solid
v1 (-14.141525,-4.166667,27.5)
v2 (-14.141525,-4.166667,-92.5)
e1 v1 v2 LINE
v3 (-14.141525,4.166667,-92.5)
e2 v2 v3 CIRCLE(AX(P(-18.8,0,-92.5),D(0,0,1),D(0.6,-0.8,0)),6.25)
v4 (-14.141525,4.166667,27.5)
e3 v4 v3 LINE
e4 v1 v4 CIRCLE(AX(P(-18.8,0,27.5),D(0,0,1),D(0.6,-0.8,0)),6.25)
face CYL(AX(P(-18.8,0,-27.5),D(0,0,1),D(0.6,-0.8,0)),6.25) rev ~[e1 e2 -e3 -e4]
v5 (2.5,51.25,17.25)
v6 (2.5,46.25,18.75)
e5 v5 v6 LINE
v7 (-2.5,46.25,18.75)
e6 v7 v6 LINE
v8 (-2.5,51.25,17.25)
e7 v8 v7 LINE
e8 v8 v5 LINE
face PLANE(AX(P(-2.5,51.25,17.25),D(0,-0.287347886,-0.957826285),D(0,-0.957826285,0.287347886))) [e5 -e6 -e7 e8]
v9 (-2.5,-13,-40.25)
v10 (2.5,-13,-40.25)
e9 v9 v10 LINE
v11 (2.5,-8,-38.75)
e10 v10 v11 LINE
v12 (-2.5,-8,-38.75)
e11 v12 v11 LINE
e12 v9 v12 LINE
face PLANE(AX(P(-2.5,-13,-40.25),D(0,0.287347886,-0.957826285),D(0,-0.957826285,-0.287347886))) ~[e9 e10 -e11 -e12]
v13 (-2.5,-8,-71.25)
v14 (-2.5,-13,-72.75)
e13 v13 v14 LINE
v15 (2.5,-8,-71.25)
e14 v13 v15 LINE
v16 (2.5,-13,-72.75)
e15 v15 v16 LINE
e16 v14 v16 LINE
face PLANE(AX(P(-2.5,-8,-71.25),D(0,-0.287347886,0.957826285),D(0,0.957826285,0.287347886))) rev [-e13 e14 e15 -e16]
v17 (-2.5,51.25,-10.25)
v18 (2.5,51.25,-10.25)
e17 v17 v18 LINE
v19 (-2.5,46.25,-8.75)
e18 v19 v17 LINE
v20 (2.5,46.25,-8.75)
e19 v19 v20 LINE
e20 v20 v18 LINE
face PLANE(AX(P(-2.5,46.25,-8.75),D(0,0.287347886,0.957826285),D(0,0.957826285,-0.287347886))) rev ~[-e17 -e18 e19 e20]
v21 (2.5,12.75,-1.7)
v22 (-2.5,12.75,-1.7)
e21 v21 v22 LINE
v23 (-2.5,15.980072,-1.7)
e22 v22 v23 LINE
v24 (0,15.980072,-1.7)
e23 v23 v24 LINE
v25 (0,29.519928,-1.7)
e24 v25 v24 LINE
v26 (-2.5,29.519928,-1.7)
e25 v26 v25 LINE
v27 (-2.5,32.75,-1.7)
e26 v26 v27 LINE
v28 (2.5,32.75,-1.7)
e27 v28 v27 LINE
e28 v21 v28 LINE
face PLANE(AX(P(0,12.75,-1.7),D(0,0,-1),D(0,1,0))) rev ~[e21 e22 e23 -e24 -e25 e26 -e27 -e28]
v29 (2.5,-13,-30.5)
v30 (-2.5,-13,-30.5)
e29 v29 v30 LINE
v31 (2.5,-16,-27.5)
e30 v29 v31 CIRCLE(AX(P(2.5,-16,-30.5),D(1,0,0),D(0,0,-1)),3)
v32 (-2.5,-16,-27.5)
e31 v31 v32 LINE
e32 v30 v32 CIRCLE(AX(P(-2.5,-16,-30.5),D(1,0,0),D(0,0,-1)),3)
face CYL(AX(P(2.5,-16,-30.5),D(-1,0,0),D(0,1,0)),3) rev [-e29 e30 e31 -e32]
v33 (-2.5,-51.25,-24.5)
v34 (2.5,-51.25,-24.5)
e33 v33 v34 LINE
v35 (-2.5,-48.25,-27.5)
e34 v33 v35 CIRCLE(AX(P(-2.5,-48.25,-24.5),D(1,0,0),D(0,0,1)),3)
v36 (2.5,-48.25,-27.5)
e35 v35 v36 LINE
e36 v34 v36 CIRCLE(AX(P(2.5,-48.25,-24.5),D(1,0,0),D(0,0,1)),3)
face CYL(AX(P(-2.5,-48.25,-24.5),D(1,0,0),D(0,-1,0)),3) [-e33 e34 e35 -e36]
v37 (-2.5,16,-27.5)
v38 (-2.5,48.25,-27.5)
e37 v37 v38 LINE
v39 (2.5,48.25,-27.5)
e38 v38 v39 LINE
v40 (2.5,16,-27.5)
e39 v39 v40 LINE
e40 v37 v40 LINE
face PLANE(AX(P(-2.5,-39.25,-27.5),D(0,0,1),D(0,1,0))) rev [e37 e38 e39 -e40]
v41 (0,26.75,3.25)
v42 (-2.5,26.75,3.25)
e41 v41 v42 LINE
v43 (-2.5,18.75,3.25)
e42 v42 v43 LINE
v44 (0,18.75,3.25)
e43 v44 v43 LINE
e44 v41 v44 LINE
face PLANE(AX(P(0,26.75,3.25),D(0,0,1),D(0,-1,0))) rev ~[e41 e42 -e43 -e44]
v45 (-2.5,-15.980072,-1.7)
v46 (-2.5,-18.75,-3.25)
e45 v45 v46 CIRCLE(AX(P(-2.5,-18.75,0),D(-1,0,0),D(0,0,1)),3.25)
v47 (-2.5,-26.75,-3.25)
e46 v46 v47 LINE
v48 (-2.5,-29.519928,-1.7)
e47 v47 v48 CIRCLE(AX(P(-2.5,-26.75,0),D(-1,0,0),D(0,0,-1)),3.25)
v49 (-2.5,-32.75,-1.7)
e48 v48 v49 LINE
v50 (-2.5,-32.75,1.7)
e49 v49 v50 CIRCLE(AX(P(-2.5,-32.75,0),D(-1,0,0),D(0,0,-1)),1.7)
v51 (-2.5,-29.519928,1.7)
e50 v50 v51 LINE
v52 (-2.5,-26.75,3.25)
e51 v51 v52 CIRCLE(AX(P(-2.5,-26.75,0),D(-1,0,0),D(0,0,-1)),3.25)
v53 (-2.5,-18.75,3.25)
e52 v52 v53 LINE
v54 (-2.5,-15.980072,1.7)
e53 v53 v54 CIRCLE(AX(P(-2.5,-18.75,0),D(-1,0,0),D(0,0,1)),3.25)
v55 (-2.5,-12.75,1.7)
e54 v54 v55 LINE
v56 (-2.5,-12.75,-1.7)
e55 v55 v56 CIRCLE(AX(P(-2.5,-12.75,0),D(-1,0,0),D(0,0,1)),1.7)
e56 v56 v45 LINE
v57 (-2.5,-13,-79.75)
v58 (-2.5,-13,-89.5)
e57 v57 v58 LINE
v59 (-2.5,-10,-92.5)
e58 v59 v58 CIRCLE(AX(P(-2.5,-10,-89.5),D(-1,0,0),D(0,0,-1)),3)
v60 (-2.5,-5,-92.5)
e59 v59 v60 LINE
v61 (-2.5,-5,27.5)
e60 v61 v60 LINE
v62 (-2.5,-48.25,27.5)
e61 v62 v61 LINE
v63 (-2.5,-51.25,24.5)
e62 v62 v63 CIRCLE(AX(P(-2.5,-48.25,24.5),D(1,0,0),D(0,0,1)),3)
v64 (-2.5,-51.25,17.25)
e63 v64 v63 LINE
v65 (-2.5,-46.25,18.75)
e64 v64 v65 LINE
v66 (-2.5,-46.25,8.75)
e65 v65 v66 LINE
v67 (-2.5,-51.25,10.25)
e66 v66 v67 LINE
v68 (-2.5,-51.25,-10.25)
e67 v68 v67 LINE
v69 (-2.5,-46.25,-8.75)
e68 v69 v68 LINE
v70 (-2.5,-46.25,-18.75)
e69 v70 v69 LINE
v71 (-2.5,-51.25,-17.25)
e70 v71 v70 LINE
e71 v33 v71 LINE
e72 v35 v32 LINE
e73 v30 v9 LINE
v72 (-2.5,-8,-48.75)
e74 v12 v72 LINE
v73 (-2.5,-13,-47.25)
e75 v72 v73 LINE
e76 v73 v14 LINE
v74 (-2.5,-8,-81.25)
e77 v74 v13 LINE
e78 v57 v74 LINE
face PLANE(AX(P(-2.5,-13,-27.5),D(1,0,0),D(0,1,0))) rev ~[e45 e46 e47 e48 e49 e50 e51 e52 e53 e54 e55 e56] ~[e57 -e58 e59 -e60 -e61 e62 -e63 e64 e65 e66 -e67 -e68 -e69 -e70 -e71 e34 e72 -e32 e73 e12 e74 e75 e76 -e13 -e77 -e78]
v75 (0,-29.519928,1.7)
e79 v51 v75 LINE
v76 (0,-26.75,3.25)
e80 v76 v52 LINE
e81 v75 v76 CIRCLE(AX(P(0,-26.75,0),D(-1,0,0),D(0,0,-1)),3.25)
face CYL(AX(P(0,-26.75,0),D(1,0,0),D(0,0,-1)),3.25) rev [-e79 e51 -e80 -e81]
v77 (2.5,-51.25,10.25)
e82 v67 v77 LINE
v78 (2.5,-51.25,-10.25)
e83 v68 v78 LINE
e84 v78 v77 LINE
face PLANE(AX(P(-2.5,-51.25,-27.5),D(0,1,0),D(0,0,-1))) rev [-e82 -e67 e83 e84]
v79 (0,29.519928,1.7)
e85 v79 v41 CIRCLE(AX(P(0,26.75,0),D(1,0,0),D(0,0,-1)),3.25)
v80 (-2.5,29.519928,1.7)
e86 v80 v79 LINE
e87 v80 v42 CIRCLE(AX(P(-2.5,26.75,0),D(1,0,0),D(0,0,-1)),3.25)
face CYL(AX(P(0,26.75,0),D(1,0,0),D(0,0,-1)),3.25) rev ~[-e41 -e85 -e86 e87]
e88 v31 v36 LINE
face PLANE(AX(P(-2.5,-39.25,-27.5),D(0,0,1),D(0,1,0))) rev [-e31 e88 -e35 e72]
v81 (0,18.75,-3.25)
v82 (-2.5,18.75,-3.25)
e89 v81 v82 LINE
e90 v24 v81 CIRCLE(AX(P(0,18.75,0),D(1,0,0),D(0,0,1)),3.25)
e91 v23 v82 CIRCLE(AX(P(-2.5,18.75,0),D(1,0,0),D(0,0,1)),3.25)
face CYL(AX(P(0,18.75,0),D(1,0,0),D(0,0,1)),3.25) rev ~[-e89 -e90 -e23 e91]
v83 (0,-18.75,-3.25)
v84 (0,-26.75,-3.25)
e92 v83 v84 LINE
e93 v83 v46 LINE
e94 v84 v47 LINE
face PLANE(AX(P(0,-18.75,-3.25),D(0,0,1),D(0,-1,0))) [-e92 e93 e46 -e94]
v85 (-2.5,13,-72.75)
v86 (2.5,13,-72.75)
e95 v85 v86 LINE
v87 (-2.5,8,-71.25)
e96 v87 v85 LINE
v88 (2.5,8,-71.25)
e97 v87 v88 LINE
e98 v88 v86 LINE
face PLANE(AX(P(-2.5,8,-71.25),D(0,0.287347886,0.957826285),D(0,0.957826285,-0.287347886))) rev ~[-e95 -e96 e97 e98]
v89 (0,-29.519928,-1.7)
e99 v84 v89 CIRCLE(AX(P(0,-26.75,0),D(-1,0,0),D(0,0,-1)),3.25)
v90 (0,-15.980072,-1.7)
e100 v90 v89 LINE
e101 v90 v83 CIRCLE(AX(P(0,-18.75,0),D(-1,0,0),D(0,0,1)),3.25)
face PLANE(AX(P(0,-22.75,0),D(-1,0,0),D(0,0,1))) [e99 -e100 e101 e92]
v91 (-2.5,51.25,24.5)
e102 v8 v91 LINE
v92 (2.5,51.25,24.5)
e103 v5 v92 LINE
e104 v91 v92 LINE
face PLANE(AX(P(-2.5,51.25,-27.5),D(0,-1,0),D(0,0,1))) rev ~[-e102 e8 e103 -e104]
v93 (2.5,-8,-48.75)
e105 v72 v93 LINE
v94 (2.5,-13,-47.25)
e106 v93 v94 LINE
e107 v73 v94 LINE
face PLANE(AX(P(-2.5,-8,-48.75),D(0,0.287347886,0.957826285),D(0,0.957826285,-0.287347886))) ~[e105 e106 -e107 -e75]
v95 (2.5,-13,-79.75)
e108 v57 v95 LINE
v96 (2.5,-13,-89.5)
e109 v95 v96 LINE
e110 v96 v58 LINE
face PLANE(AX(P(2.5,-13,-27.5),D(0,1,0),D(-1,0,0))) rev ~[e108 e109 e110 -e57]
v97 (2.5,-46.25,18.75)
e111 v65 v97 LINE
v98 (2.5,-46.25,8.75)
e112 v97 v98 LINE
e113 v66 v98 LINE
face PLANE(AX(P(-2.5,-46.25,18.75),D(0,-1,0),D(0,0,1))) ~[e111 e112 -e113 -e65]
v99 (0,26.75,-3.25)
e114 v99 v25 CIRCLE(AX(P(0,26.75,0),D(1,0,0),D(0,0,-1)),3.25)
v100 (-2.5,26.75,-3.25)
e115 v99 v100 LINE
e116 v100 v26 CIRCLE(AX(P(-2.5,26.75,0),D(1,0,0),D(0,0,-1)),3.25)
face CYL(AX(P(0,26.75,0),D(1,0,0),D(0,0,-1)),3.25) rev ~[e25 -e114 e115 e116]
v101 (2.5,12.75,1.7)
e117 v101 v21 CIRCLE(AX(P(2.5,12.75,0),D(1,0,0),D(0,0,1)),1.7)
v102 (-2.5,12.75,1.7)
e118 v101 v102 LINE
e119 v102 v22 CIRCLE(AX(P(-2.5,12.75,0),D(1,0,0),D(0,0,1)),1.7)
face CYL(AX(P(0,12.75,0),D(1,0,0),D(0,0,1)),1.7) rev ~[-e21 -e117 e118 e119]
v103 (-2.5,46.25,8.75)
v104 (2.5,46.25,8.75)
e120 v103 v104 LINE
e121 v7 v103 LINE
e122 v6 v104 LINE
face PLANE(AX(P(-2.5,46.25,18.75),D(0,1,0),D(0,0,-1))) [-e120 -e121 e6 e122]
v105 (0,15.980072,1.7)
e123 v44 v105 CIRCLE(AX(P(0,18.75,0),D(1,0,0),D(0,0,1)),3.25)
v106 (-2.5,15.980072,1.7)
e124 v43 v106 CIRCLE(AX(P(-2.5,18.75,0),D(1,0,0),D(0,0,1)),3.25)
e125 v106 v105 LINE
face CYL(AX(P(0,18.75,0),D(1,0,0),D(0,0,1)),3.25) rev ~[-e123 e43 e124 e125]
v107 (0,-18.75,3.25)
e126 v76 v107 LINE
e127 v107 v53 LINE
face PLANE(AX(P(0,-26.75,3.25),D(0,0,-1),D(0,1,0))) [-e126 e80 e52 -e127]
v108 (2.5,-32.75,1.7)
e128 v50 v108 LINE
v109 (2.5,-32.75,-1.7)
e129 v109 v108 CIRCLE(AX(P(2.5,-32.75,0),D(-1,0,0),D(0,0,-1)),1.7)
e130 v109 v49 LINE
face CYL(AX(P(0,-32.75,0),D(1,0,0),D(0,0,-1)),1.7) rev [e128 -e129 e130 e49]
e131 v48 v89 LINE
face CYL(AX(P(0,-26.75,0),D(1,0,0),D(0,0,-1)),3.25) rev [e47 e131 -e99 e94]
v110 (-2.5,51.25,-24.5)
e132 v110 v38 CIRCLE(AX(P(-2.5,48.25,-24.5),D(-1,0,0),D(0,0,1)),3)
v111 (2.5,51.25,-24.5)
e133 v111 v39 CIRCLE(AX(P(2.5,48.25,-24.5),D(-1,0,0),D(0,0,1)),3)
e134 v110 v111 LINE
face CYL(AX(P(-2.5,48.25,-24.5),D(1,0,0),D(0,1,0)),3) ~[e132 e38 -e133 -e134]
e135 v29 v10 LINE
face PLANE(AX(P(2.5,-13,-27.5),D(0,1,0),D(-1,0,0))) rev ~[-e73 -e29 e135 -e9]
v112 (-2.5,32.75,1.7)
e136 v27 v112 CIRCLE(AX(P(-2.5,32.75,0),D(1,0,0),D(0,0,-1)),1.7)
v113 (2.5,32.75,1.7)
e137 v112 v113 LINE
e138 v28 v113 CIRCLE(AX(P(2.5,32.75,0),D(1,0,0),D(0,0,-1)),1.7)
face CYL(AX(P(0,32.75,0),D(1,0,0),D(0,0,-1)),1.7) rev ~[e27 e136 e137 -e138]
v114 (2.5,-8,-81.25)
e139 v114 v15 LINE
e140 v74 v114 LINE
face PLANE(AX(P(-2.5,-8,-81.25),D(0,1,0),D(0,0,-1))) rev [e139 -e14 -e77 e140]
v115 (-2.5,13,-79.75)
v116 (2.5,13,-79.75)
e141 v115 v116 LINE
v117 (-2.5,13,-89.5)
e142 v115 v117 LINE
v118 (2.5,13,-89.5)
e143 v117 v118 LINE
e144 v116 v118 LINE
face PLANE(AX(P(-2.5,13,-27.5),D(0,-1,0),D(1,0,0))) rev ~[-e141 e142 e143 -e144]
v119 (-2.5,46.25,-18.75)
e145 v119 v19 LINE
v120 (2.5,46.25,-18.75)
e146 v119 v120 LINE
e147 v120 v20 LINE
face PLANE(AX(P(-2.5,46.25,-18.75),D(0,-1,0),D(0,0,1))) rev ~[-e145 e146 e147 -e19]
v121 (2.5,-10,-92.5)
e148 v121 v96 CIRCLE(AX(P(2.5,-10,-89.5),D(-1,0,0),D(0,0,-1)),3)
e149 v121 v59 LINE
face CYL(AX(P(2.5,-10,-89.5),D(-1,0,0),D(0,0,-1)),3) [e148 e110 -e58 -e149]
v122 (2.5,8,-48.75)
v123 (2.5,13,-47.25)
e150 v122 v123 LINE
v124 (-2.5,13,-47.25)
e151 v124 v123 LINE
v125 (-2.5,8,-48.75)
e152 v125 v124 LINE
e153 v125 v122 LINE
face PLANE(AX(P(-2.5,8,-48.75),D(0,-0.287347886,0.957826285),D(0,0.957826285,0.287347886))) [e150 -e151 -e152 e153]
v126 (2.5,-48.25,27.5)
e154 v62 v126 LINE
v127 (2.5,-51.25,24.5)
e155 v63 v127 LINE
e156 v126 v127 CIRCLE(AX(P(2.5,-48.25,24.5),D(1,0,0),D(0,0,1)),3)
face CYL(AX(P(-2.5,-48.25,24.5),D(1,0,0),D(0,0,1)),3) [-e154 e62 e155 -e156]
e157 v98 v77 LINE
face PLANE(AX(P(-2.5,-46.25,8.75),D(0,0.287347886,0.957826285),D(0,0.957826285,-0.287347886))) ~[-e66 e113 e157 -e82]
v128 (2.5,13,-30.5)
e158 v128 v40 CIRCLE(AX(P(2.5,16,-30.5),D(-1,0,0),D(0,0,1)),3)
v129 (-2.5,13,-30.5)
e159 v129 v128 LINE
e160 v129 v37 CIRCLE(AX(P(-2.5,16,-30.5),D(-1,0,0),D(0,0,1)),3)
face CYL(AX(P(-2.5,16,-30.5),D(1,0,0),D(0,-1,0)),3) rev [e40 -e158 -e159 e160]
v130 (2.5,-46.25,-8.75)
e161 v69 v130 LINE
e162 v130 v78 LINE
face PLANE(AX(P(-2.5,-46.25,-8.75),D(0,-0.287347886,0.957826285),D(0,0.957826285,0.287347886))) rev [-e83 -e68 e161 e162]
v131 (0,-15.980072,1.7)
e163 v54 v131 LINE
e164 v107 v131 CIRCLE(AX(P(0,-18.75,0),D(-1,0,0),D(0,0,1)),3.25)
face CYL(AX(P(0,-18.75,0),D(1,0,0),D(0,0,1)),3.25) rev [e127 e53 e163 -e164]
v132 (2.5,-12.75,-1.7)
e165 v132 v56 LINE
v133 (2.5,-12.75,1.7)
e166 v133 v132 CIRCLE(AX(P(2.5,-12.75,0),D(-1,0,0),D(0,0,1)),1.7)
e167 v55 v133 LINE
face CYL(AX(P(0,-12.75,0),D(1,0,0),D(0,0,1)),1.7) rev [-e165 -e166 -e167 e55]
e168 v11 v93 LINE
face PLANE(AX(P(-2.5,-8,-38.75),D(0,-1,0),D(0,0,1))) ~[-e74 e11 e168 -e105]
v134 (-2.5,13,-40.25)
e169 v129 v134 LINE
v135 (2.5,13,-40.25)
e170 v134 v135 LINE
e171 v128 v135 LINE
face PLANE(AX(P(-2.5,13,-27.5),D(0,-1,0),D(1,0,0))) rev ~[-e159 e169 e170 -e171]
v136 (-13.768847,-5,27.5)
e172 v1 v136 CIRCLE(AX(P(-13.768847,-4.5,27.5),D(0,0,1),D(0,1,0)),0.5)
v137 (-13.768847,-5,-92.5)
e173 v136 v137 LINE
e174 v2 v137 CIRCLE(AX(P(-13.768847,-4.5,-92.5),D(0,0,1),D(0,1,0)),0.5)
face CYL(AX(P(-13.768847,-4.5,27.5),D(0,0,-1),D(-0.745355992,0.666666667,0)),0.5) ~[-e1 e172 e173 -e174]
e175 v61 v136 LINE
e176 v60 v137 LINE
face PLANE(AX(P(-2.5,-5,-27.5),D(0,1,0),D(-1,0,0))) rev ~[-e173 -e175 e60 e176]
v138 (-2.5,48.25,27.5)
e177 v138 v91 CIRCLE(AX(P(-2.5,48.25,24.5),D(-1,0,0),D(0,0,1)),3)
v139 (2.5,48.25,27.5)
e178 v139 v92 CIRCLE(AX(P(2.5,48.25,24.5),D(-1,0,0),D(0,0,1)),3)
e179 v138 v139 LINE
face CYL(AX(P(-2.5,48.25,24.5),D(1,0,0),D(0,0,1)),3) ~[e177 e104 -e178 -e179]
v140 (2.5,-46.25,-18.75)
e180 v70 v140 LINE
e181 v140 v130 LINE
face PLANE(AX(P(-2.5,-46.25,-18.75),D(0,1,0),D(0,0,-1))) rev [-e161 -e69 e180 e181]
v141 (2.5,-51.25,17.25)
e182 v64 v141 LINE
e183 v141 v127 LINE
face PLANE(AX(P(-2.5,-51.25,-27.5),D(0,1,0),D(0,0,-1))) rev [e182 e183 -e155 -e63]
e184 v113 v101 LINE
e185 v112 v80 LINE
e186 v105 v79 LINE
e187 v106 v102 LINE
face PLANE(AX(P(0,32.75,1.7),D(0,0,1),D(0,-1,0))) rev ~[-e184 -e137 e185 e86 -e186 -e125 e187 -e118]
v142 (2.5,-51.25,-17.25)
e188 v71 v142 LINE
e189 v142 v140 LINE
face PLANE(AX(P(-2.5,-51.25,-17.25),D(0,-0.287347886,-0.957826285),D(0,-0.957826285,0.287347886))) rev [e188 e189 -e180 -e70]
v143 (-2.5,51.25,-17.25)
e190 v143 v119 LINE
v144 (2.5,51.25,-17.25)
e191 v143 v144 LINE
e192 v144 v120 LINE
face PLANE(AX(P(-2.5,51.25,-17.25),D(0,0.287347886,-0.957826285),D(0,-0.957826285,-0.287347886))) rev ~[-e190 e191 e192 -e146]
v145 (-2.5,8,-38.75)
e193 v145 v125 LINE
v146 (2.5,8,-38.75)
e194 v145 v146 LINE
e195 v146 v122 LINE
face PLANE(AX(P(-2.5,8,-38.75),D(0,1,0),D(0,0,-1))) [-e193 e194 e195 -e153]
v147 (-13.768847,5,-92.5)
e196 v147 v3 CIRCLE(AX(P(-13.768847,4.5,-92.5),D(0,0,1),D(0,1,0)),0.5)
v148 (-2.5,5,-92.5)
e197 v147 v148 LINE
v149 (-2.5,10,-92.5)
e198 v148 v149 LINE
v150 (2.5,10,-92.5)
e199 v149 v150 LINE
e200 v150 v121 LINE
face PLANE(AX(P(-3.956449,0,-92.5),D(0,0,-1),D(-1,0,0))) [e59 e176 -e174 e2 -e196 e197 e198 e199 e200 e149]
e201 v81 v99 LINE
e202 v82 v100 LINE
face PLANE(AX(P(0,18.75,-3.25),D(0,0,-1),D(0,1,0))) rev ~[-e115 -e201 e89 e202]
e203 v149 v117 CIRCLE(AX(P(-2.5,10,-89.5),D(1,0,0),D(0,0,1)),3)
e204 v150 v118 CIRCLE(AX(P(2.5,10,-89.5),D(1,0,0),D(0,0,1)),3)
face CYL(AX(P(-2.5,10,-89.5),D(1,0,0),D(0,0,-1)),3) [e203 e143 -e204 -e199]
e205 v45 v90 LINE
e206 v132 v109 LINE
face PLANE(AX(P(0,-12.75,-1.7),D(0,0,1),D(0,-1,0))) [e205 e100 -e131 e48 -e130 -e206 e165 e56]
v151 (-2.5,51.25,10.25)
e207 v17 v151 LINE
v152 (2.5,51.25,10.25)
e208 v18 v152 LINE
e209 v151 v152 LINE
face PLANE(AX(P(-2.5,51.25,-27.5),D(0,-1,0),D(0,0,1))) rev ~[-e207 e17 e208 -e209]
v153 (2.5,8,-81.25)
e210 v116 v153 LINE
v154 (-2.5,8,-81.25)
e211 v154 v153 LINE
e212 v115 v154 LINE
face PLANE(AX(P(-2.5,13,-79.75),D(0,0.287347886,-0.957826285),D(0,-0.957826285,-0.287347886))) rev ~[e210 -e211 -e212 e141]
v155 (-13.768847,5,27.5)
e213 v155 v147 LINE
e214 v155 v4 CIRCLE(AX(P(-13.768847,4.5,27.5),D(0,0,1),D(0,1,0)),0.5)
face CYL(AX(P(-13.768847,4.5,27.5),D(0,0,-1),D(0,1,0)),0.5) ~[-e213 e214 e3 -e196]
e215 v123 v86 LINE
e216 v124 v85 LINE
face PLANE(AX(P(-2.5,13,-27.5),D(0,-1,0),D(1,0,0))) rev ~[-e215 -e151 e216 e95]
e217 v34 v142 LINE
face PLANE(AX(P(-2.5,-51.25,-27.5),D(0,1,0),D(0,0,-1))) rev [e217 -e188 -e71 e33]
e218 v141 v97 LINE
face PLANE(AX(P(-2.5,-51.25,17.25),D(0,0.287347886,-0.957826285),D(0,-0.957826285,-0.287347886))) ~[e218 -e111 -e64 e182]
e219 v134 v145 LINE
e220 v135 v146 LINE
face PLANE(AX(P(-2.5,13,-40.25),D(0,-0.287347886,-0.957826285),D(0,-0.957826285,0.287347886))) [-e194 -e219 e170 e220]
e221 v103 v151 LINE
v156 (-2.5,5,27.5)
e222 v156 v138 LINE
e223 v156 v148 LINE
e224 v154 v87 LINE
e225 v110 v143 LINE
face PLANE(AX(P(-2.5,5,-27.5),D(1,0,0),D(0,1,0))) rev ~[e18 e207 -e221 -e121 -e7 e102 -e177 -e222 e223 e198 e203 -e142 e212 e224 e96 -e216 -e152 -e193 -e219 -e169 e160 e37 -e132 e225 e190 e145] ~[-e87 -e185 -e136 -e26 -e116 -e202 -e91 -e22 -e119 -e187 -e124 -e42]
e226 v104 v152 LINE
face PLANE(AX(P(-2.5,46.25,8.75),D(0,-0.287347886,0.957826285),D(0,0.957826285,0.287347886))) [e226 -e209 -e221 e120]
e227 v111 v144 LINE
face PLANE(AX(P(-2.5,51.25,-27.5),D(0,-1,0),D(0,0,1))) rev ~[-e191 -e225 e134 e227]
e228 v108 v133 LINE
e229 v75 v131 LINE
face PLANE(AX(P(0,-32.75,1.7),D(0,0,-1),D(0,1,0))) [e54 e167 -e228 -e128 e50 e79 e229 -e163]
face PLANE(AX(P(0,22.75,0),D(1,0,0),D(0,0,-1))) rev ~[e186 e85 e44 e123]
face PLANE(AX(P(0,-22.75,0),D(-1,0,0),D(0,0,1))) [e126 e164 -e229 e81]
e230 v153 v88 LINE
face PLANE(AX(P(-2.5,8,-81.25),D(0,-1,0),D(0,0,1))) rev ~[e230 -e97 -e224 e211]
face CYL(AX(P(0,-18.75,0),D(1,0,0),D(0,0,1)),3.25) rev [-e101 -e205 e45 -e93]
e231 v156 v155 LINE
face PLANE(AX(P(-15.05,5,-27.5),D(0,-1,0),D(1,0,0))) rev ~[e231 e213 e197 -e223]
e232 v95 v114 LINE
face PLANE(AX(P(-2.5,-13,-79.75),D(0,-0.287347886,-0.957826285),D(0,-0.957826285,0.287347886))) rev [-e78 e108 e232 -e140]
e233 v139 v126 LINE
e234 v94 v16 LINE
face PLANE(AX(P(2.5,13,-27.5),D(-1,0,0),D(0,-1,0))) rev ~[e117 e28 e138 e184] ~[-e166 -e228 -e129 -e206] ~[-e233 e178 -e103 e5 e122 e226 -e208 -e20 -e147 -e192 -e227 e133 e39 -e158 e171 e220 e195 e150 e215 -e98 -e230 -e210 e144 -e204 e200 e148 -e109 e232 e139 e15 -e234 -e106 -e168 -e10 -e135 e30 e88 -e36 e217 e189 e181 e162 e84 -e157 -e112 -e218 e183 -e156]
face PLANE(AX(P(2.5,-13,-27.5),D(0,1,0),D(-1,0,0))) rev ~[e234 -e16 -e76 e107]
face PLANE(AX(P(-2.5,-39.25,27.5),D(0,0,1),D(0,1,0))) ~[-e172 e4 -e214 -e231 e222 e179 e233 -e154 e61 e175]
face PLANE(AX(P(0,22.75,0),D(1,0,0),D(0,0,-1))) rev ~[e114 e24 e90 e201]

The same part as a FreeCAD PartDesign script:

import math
import FreeCAD as App
import Part
import Sketcher
from FreeCAD import Vector


def edges_at(feature, points):
    """Names of the edges that pass closest to the given points."""
    edges = feature.Shape.Edges
    near = lambda p: min(range(len(edges)), key=lambda i: edges[i].distToShape(Part.Vertex(*p))[0])
    return sorted({f"Edge{near(p) + 1}" for p in points})

doc = App.newDocument("Part")
params = doc.addObject("Spreadsheet::Sheet", "Params")
for row, (alias, value) in enumerate([
    ("sketch1_radius", "1.7 mm"),
    ("sketch1_width", "20 mm"),
    ("sketch1_height", "55 mm"),
    ("sketch1_width2", "78.5 mm"),
    ("pad1_length", "5 mm"),
    ("sketch2_width", "10 mm"),
    ("sketch2_height", "55 mm"),
    ("pad2_length", "16.3 mm"),
    ("sketch3_height", "10 mm"),
    ("sketch3_radius", "6.25 mm"),
    ("sketch4_width", "12 mm"),
    ("sketch4_height", "55 mm"),
    ("pad3_length", "5 mm"),
    ("sketch5_height", "7 mm"),
    ("sketch5_height2", "10 mm"),
    ("pocket2_length", "5 mm"),
    ("sketch6_width", "8 mm"),
    ("sketch6_radius", "3.25 mm"),
    ("pocket3_length", "2.5 mm"),
    ("sketch7_width", "5 mm"),
    ("sketch7_height", "8 mm"),
    ("sketch7_height2", "26 mm"),
    ("sketch7_radius", "6.25 mm"),
    ("sketch7_width2", "12.55 mm"),
    ("pad4_length", "65 mm"),
    ("fillet_radius", "0.5 mm"),
    ("sketch8_height", "7 mm"),
    ("sketch8_height2", "10 mm"),
    ("pocket4_length", "5 mm"),
    ("fillet2_radius", "3 mm"),
], start=1):
    params.set(f"A{row}", alias)
    params.set(f"B{row}", "=" + value)
    params.setAlias(f"B{row}", alias)

body = doc.addObject("PartDesign::Body", "Body")

# Sketch on YZ plane
sketch1 = body.newObject("Sketcher::SketchObject", "Sketch")
sketch1.AttachmentSupport = (doc.getObject("YZ_Plane"), [""])
sketch1.MapMode = "FlatFace"
sketch1.addGeometry(Part.LineSegment(Vector(39.2, 27.5, 0), Vector(-39.2, 27.5, 0)), False)
sketch1.addGeometry(Part.LineSegment(Vector(-39.2, 27.5, 0), Vector(-39.2, -27.5, 0)), False)
sketch1.addGeometry(Part.LineSegment(Vector(-39.2, -27.5, 0), Vector(39.2, -27.5, 0)), False)
sketch1.addGeometry(Part.LineSegment(Vector(39.2, -27.5, 0), Vector(39.2, 27.5, 0)), False)
sketch1.addGeometry(Part.ArcOfCircle(Part.Circle(Vector(-32.8, 0, 0), Vector(0, 0, 1), 1.7), math.radians(90), math.radians(270)), False)
sketch1.addGeometry(Part.LineSegment(Vector(-32.8, 1.7, 0), Vector(-12.8, 1.7, 0)), False)
sketch1.addGeometry(Part.ArcOfCircle(Part.Circle(Vector(-12.8, 0, 0), Vector(0, 0, 1), 1.7), math.radians(-90), math.radians(90)), False)
sketch1.addGeometry(Part.LineSegment(Vector(-12.8, -1.7, 0), Vector(-32.8, -1.7, 0)), False)
sketch1.addGeometry(Part.LineSegment(Vector(12.8, 1.7, 0), Vector(32.8, 1.7, 0)), False)
sketch1.addGeometry(Part.ArcOfCircle(Part.Circle(Vector(32.8, 0, 0), Vector(0, 0, 1), 1.7), math.radians(-90), math.radians(90)), False)
sketch1.addGeometry(Part.LineSegment(Vector(32.8, -1.7, 0), Vector(12.8, -1.7, 0)), False)
sketch1.addGeometry(Part.ArcOfCircle(Part.Circle(Vector(12.8, 0, 0), Vector(0, 0, 1), 1.7), math.radians(90), math.radians(270)), False)
sketch1.addConstraint(Sketcher.Constraint("Coincident", 0, 2, 1, 1))
sketch1.addConstraint(Sketcher.Constraint("Coincident", 1, 2, 2, 1))
sketch1.addConstraint(Sketcher.Constraint("Coincident", 2, 2, 3, 1))
sketch1.addConstraint(Sketcher.Constraint("Coincident", 3, 2, 0, 1))
sketch1.addConstraint(Sketcher.Constraint("Tangent", 4, 1, 5, 1))
sketch1.addConstraint(Sketcher.Constraint("Tangent", 5, 2, 6, 2))
sketch1.addConstraint(Sketcher.Constraint("Tangent", 6, 1, 7, 1))
sketch1.addConstraint(Sketcher.Constraint("Tangent", 7, 2, 4, 2))
sketch1.addConstraint(Sketcher.Constraint("Tangent", 8, 2, 9, 2))
sketch1.addConstraint(Sketcher.Constraint("Tangent", 9, 1, 10, 1))
sketch1.addConstraint(Sketcher.Constraint("Tangent", 10, 2, 11, 2))
sketch1.addConstraint(Sketcher.Constraint("Tangent", 11, 1, 8, 1))
sketch1.addConstraint(Sketcher.Constraint("Horizontal", 0))
sketch1.addConstraint(Sketcher.Constraint("Vertical", 1))
sketch1.addConstraint(Sketcher.Constraint("Horizontal", 2))
sketch1.addConstraint(Sketcher.Constraint("Vertical", 3))
sketch1.addConstraint(Sketcher.Constraint("Horizontal", 5))
sketch1.addConstraint(Sketcher.Constraint("Horizontal", 7))
sketch1.addConstraint(Sketcher.Constraint("Horizontal", 8))
sketch1.addConstraint(Sketcher.Constraint("Horizontal", 10))
sketch1.addConstraint(Sketcher.Constraint("Equal", 6, 9))
sketch1.addConstraint(Sketcher.Constraint("Symmetric", 4, 3, 9, 3, -1, 1))
sketch1.addConstraint(Sketcher.Constraint("Symmetric", 0, 2, 2, 2, -1, 1))
sketch1.addConstraint(Sketcher.Constraint("Symmetric", 6, 3, 11, 3, -2))
sketch1.addConstraint(Sketcher.Constraint("Radius", 4, 1.7))
sketch1.addConstraint(Sketcher.Constraint("DistanceX", 5, 1, 5, 2, 20.0))
sketch1.addConstraint(Sketcher.Constraint("DistanceY", 1, 2, 1, 1, 55.0))
sketch1.addConstraint(Sketcher.Constraint("DistanceX", 0, 2, 0, 1, 78.5))
sketch1.addConstraint(Sketcher.Constraint("DistanceX", 0, 2, 11, 3, 52.0))
sketch1.setExpression("Constraints[24]", "Params.sketch1_radius")
sketch1.setExpression("Constraints[25]", "Params.sketch1_width")
sketch1.setExpression("Constraints[26]", "Params.sketch1_height")
sketch1.setExpression("Constraints[27]", "Params.sketch1_width2")
pad1 = body.newObject("PartDesign::Pad", "Pad")
pad1.Profile = sketch1
pad1.setExpression("Length", "Params.pad1_length")
pad1.Midplane = True

# Sketch on YZ plane
sketch2 = body.newObject("Sketcher::SketchObject", "Sketch001")
sketch2.AttachmentSupport = (doc.getObject("YZ_Plane"), [""])
sketch2.MapMode = "FlatFace"
sketch2.AttachmentOffset = App.Placement(Vector(0, 0, -2.5), App.Rotation())
sketch2.addGeometry(Part.LineSegment(Vector(5, -28, 0), Vector(-5, -28, 0)), False)
sketch2.addGeometry(Part.LineSegment(Vector(-5, -28, 0), Vector(-5, 28, 0)), False)
sketch2.addGeometry(Part.LineSegment(Vector(-5, 28, 0), Vector(5, 28, 0)), False)
sketch2.addGeometry(Part.LineSegment(Vector(5, 28, 0), Vector(5, -28, 0)), False)
sketch2.addConstraint(Sketcher.Constraint("Coincident", 0, 2, 1, 1))
sketch2.addConstraint(Sketcher.Constraint("Coincident", 1, 2, 2, 1))
sketch2.addConstraint(Sketcher.Constraint("Coincident", 2, 2, 3, 1))
sketch2.addConstraint(Sketcher.Constraint("Coincident", 3, 2, 0, 1))
sketch2.addConstraint(Sketcher.Constraint("Horizontal", 0))
sketch2.addConstraint(Sketcher.Constraint("Vertical", 1))
sketch2.addConstraint(Sketcher.Constraint("Horizontal", 2))
sketch2.addConstraint(Sketcher.Constraint("Vertical", 3))
sketch2.addConstraint(Sketcher.Constraint("Symmetric", 0, 2, 2, 2, -1, 1))
sketch2.addConstraint(Sketcher.Constraint("DistanceX", 0, 2, 0, 1, 10.0))
sketch2.addConstraint(Sketcher.Constraint("DistanceY", 1, 1, 1, 2, 55.0))
sketch2.setExpression("Constraints[9]", "Params.sketch2_width")
sketch2.setExpression("Constraints[10]", "Params.sketch2_height")
pad2 = body.newObject("PartDesign::Pad", "Pad001")
pad2.Profile = sketch2
pad2.setExpression("Length", "Params.pad2_length")
pad2.Reversed = True

# Sketch on XY plane
sketch3 = body.newObject("Sketcher::SketchObject", "Sketch002")
sketch3.AttachmentSupport = (doc.getObject("XY_Plane"), [""])
sketch3.MapMode = "FlatFace"
sketch3.AttachmentOffset = App.Placement(Vector(0, 0, 27.5), App.Rotation())
sketch3.addGeometry(Part.LineSegment(Vector(-15.1, 5, 0), Vector(-18.8, 5, 0)), False)
sketch3.addGeometry(Part.LineSegment(Vector(-18.8, 5, 0), Vector(-18.8, -5, 0)), False)
sketch3.addGeometry(Part.LineSegment(Vector(-18.8, -5, 0), Vector(-15.1, -5, 0)), False)
sketch3.addGeometry(Part.ArcOfCircle(Part.Circle(Vector(-18.8, 0, 0), Vector(0, 0, 1), 6.2), math.radians(-53), math.radians(53)), False)
sketch3.addConstraint(Sketcher.Constraint("Coincident", 0, 2, 1, 1))
sketch3.addConstraint(Sketcher.Constraint("Coincident", 1, 2, 2, 1))
sketch3.addConstraint(Sketcher.Constraint("Coincident", 2, 2, 3, 1))
sketch3.addConstraint(Sketcher.Constraint("Coincident", 3, 2, 0, 1))
sketch3.addConstraint(Sketcher.Constraint("Horizontal", 0))
sketch3.addConstraint(Sketcher.Constraint("Vertical", 1))
sketch3.addConstraint(Sketcher.Constraint("Horizontal", 2))
sketch3.addConstraint(Sketcher.Constraint("Symmetric", 2, 2, 3, 2, -1))
sketch3.addConstraint(Sketcher.Constraint("Vertical", 3, 3, 0, 2))
sketch3.addConstraint(Sketcher.Constraint("DistanceY", 1, 2, 1, 1, 10.0))
sketch3.addConstraint(Sketcher.Constraint("Radius", 3, 6.25))
sketch3.addConstraint(Sketcher.Constraint("DistanceX", 3, 3, -1, 1, 18.8))
sketch3.setExpression("Constraints[9]", "Params.sketch3_height")
sketch3.setExpression("Constraints[10]", "Params.sketch3_radius")
pocket1 = body.newObject("PartDesign::Pocket", "Pocket")
pocket1.Profile = sketch3
pocket1.Type = "ThroughAll"

# Sketch on YZ plane
sketch4 = body.newObject("Sketcher::SketchObject", "Sketch003")
sketch4.AttachmentSupport = (doc.getObject("YZ_Plane"), [""])
sketch4.MapMode = "FlatFace"
sketch4.AttachmentOffset = App.Placement(Vector(0, 0, -2.5), App.Rotation())
sketch4.addGeometry(Part.LineSegment(Vector(51, -28, 0), Vector(39, -28, 0)), False)
sketch4.addGeometry(Part.LineSegment(Vector(39, -28, 0), Vector(39, 28, 0)), False)
sketch4.addGeometry(Part.LineSegment(Vector(39, 28, 0), Vector(51, 28, 0)), False)
sketch4.addGeometry(Part.LineSegment(Vector(51, 28, 0), Vector(51, -28, 0)), False)
sketch4.addConstraint(Sketcher.Constraint("Coincident", 0, 2, 1, 1))
sketch4.addConstraint(Sketcher.Constraint("Coincident", 1, 2, 2, 1))
sketch4.addConstraint(Sketcher.Constraint("Coincident", 2, 2, 3, 1))
sketch4.addConstraint(Sketcher.Constraint("Coincident", 3, 2, 0, 1))
sketch4.addConstraint(Sketcher.Constraint("Horizontal", 0))
sketch4.addConstraint(Sketcher.Constraint("Vertical", 1))
sketch4.addConstraint(Sketcher.Constraint("Horizontal", 2))
sketch4.addConstraint(Sketcher.Constraint("Vertical", 3))
sketch4.addConstraint(Sketcher.Constraint("DistanceX", 0, 2, 0, 1, 12.0))
sketch4.addConstraint(Sketcher.Constraint("DistanceY", 1, 1, 1, 2, 55.0))
sketch4.addConstraint(Sketcher.Constraint("DistanceY", 0, 2, -1, 1, 27.5))
sketch4.addConstraint(Sketcher.Constraint("DistanceX", -1, 1, 0, 2, 39.25))
sketch4.setExpression("Constraints[8]", "Params.sketch4_width")
sketch4.setExpression("Constraints[9]", "Params.sketch4_height")
pad3 = body.newObject("PartDesign::Pad", "Pad002")
pad3.Profile = sketch4
pad3.setExpression("Length", "Params.pad3_length")

# Sketch on YZ plane
sketch5 = body.newObject("Sketcher::SketchObject", "Sketch004")
sketch5.AttachmentSupport = (doc.getObject("YZ_Plane"), [""])
sketch5.MapMode = "FlatFace"
sketch5.AttachmentOffset = App.Placement(Vector(0, 0, -2.5), App.Rotation())
sketch5.addGeometry(Part.LineSegment(Vector(51, 17, 0), Vector(51, 10, 0)), False)
sketch5.addGeometry(Part.LineSegment(Vector(51, 10, 0), Vector(46, 9, 0)), False)
sketch5.addGeometry(Part.LineSegment(Vector(46, 9, 0), Vector(46, 19, 0)), False)
sketch5.addGeometry(Part.LineSegment(Vector(46, 19, 0), Vector(51, 17, 0)), False)
sketch5.addGeometry(Part.LineSegment(Vector(46, -19, 0), Vector(46, -9, 0)), False)
sketch5.addGeometry(Part.LineSegment(Vector(46, -9, 0), Vector(51, -10, 0)), False)
sketch5.addGeometry(Part.LineSegment(Vector(51, -10, 0), Vector(51, -17, 0)), False)
sketch5.addGeometry(Part.LineSegment(Vector(51, -17, 0), Vector(46, -19, 0)), False)
sketch5.addConstraint(Sketcher.Constraint("Coincident", 0, 2, 1, 1))
sketch5.addConstraint(Sketcher.Constraint("Coincident", 1, 2, 2, 1))
sketch5.addConstraint(Sketcher.Constraint("Coincident", 2, 2, 3, 1))
sketch5.addConstraint(Sketcher.Constraint("Coincident", 3, 2, 0, 1))
sketch5.addConstraint(Sketcher.Constraint("Coincident", 4, 2, 5, 1))
sketch5.addConstraint(Sketcher.Constraint("Coincident", 5, 2, 6, 1))
sketch5.addConstraint(Sketcher.Constraint("Coincident", 6, 2, 7, 1))
sketch5.addConstraint(Sketcher.Constraint("Coincident", 7, 2, 4, 1))
sketch5.addConstraint(Sketcher.Constraint("Vertical", 0))
sketch5.addConstraint(Sketcher.Constraint("Vertical", 2))
sketch5.addConstraint(Sketcher.Constraint("Vertical", 4))
sketch5.addConstraint(Sketcher.Constraint("Vertical", 6))
sketch5.addConstraint(Sketcher.Constraint("Symmetric", 1, 2, 4, 2, -1))
sketch5.addConstraint(Sketcher.Constraint("Symmetric", 0, 2, 5, 2, -1))
sketch5.addConstraint(Sketcher.Constraint("Parallel", 3, 5))
sketch5.addConstraint(Sketcher.Constraint("Parallel", 1, 7))
sketch5.addConstraint(Sketcher.Constraint("Equal", 2, 4))
sketch5.addConstraint(Sketcher.Constraint("DistanceY", 0, 2, 0, 1, 7.0))
sketch5.addConstraint(Sketcher.Constraint("DistanceY", 2, 1, 2, 2, 10.0))
sketch5.addConstraint(Sketcher.Constraint("DistanceX", 1, 2, 0, 2, 5.0))
sketch5.addConstraint(Sketcher.Constraint("DistanceY", 4, 2, 0, 2, 19.0))
sketch5.addConstraint(Sketcher.Constraint("DistanceX", -1, 1, 0, 2, 51.25))
sketch5.setExpression("Constraints[17]", "Params.sketch5_height")
sketch5.setExpression("Constraints[18]", "Params.sketch5_height2")
pocket2 = body.newObject("PartDesign::Pocket", "Pocket001")
pocket2.Profile = sketch5
pocket2.setExpression("Length", "Params.pocket2_length")
pocket2.Reversed = True
doc.recompute()

mirrored = body.newObject("PartDesign::Mirrored", "Mirrored")
mirrored.Originals = [pad3]
mirrored.MirrorPlane = (doc.getObject("XZ_Plane"), [""])
body.Tip = mirrored

# Sketch on YZ plane
sketch6 = body.newObject("Sketcher::SketchObject", "Sketch005")
sketch6.AttachmentSupport = (doc.getObject("YZ_Plane"), [""])
sketch6.MapMode = "FlatFace"
sketch6.addGeometry(Part.LineSegment(Vector(-26.8, -3.2, 0), Vector(-18.8, -3.2, 0)), False)
sketch6.addGeometry(Part.ArcOfCircle(Part.Circle(Vector(-18.8, 0, 0), Vector(0, 0, 1), 3.2), math.radians(-90), math.radians(90)), False)
sketch6.addGeometry(Part.LineSegment(Vector(-18.8, 3.2, 0), Vector(-26.8, 3.2, 0)), False)
sketch6.addGeometry(Part.ArcOfCircle(Part.Circle(Vector(-26.8, 0, 0), Vector(0, 0, 1), 3.2), math.radians(90), math.radians(270)), False)
sketch6.addGeometry(Part.LineSegment(Vector(18.8, -3.2, 0), Vector(26.8, -3.2, 0)), False)
sketch6.addGeometry(Part.ArcOfCircle(Part.Circle(Vector(26.8, 0, 0), Vector(0, 0, 1), 3.2), math.radians(-90), math.radians(90)), False)
sketch6.addGeometry(Part.LineSegment(Vector(26.8, 3.2, 0), Vector(18.8, 3.2, 0)), False)
sketch6.addGeometry(Part.ArcOfCircle(Part.Circle(Vector(18.8, 0, 0), Vector(0, 0, 1), 3.2), math.radians(90), math.radians(270)), False)
sketch6.addConstraint(Sketcher.Constraint("Tangent", 0, 2, 1, 1))
sketch6.addConstraint(Sketcher.Constraint("Tangent", 1, 2, 2, 1))
sketch6.addConstraint(Sketcher.Constraint("Tangent", 2, 2, 3, 1))
sketch6.addConstraint(Sketcher.Constraint("Tangent", 3, 2, 0, 1))
sketch6.addConstraint(Sketcher.Constraint("Tangent", 4, 2, 5, 1))
sketch6.addConstraint(Sketcher.Constraint("Tangent", 5, 2, 6, 1))
sketch6.addConstraint(Sketcher.Constraint("Tangent", 6, 2, 7, 1))
sketch6.addConstraint(Sketcher.Constraint("Tangent", 7, 2, 4, 1))
sketch6.addConstraint(Sketcher.Constraint("Horizontal", 0))
sketch6.addConstraint(Sketcher.Constraint("Horizontal", 2))
sketch6.addConstraint(Sketcher.Constraint("Horizontal", 4))
sketch6.addConstraint(Sketcher.Constraint("Horizontal", 6))
sketch6.addConstraint(Sketcher.Constraint("Equal", 3, 5))
sketch6.addConstraint(Sketcher.Constraint("Symmetric", 3, 3, 5, 3, -1, 1))
sketch6.addConstraint(Sketcher.Constraint("Symmetric", 1, 3, 7, 3, -2))
sketch6.addConstraint(Sketcher.Constraint("DistanceX", 0, 1, 0, 2, 8.0))
sketch6.addConstraint(Sketcher.Constraint("Radius", 1, 3.25))
sketch6.addConstraint(Sketcher.Constraint("DistanceX", 1, 3, 5, 3, 45.5))
sketch6.setExpression("Constraints[15]", "Params.sketch6_width")
sketch6.setExpression("Constraints[16]", "Params.sketch6_radius")
pocket3 = body.newObject("PartDesign::Pocket", "Pocket002")
pocket3.Profile = sketch6
pocket3.setExpression("Length", "Params.pocket3_length")

# Sketch on XY plane
sketch7 = body.newObject("Sketcher::SketchObject", "Sketch006")
sketch7.AttachmentSupport = (doc.getObject("XY_Plane"), [""])
sketch7.MapMode = "FlatFace"
sketch7.AttachmentOffset = App.Placement(Vector(0, 0, -27.5), App.Rotation())
sketch7.addGeometry(Part.LineSegment(Vector(2, -13, 0), Vector(-2, -13, 0)), False)
sketch7.addGeometry(Part.LineSegment(Vector(-2, -13, 0), Vector(-2, -5, 0)), False)
sketch7.addGeometry(Part.LineSegment(Vector(-2, -5, 0), Vector(-15, -5, 0)), False)
sketch7.addGeometry(Part.ArcOfCircle(Part.Circle(Vector(-19, 0, 0), Vector(0, 0, 1), 6), math.radians(-53), math.radians(53)), False)
sketch7.addGeometry(Part.LineSegment(Vector(-15, 5, 0), Vector(-2, 5, 0)), False)
sketch7.addGeometry(Part.LineSegment(Vector(-2, 5, 0), Vector(-2, 13, 0)), False)
sketch7.addGeometry(Part.LineSegment(Vector(-2, 13, 0), Vector(2, 13, 0)), False)
sketch7.addGeometry(Part.LineSegment(Vector(2, 13, 0), Vector(2, -13, 0)), False)
sketch7.addConstraint(Sketcher.Constraint("Coincident", 0, 2, 1, 1))
sketch7.addConstraint(Sketcher.Constraint("Coincident", 1, 2, 2, 1))
sketch7.addConstraint(Sketcher.Constraint("Coincident", 2, 2, 3, 1))
sketch7.addConstraint(Sketcher.Constraint("Coincident", 3, 2, 4, 1))
sketch7.addConstraint(Sketcher.Constraint("Coincident", 4, 2, 5, 1))
sketch7.addConstraint(Sketcher.Constraint("Coincident", 5, 2, 6, 1))
sketch7.addConstraint(Sketcher.Constraint("Coincident", 6, 2, 7, 1))
sketch7.addConstraint(Sketcher.Constraint("Coincident", 7, 2, 0, 1))
sketch7.addConstraint(Sketcher.Constraint("Horizontal", 0))
sketch7.addConstraint(Sketcher.Constraint("Vertical", 1))
sketch7.addConstraint(Sketcher.Constraint("Horizontal", 2))
sketch7.addConstraint(Sketcher.Constraint("Horizontal", 4))
sketch7.addConstraint(Sketcher.Constraint("Vertical", 5))
sketch7.addConstraint(Sketcher.Constraint("Horizontal", 6))
sketch7.addConstraint(Sketcher.Constraint("Vertical", 7))
sketch7.addConstraint(Sketcher.Constraint("Symmetric", 0, 2, 6, 2, -1, 1))
sketch7.addConstraint(Sketcher.Constraint("Symmetric", 2, 2, 3, 2, -1))
sketch7.addConstraint(Sketcher.Constraint("Vertical", 1, 2, 4, 2))
sketch7.addConstraint(Sketcher.Constraint("DistanceX", 0, 2, 0, 1, 5.0))
sketch7.addConstraint(Sketcher.Constraint("DistanceY", 1, 1, 1, 2, 8.0))
sketch7.addConstraint(Sketcher.Constraint("DistanceY", 7, 2, 7, 1, 26.0))
sketch7.addConstraint(Sketcher.Constraint("Radius", 3, 6.25))
sketch7.addConstraint(Sketcher.Constraint("DistanceX", 2, 2, 2, 1, 12.55))
sketch7.setExpression("Constraints[18]", "Params.sketch7_width")
sketch7.setExpression("Constraints[19]", "Params.sketch7_height")
sketch7.setExpression("Constraints[20]", "Params.sketch7_height2")
sketch7.setExpression("Constraints[21]", "Params.sketch7_radius")
sketch7.setExpression("Constraints[22]", "Params.sketch7_width2")
pad4 = body.newObject("PartDesign::Pad", "Pad003")
pad4.Profile = sketch7
pad4.setExpression("Length", "Params.pad4_length")
pad4.Reversed = True
doc.recompute()

fillet = body.newObject("PartDesign::Fillet", "Fillet")
fillet.Base = (pad4, edges_at(pad4, [(-15.05, 5, -32.5), (-15.05, -5, -32.5)]))
fillet.setExpression("Radius", "Params.fillet_radius")

# Sketch on YZ plane
sketch8 = body.newObject("Sketcher::SketchObject", "Sketch007")
sketch8.AttachmentSupport = (doc.getObject("YZ_Plane"), [""])
sketch8.MapMode = "FlatFace"
sketch8.AttachmentOffset = App.Placement(Vector(0, 0, -2.5), App.Rotation())
sketch8.addGeometry(Part.LineSegment(Vector(8, -39, 0), Vector(13, -40, 0)), False)
sketch8.addGeometry(Part.LineSegment(Vector(13, -40, 0), Vector(13, -47, 0)), False)
sketch8.addGeometry(Part.LineSegment(Vector(13, -47, 0), Vector(8, -49, 0)), False)
sketch8.addGeometry(Part.LineSegment(Vector(8, -49, 0), Vector(8, -39, 0)), False)
sketch8.addGeometry(Part.LineSegment(Vector(13, -73, 0), Vector(13, -80, 0)), False)
sketch8.addGeometry(Part.LineSegment(Vector(13, -80, 0), Vector(8, -81, 0)), False)
sketch8.addGeometry(Part.LineSegment(Vector(8, -81, 0), Vector(8, -71, 0)), False)
sketch8.addGeometry(Part.LineSegment(Vector(8, -71, 0), Vector(13, -73, 0)), False)
sketch8.addConstraint(Sketcher.Constraint("Coincident", 0, 2, 1, 1))
sketch8.addConstraint(Sketcher.Constraint("Coincident", 1, 2, 2, 1))
sketch8.addConstraint(Sketcher.Constraint("Coincident", 2, 2, 3, 1))
sketch8.addConstraint(Sketcher.Constraint("Coincident", 3, 2, 0, 1))
sketch8.addConstraint(Sketcher.Constraint("Coincident", 4, 2, 5, 1))
sketch8.addConstraint(Sketcher.Constraint("Coincident", 5, 2, 6, 1))
sketch8.addConstraint(Sketcher.Constraint("Coincident", 6, 2, 7, 1))
sketch8.addConstraint(Sketcher.Constraint("Coincident", 7, 2, 4, 1))
sketch8.addConstraint(Sketcher.Constraint("Vertical", 1))
sketch8.addConstraint(Sketcher.Constraint("Vertical", 3))
sketch8.addConstraint(Sketcher.Constraint("Vertical", 4))
sketch8.addConstraint(Sketcher.Constraint("Vertical", 6))
sketch8.addConstraint(Sketcher.Constraint("Parallel", 2, 5))
sketch8.addConstraint(Sketcher.Constraint("Parallel", 0, 7))
sketch8.addConstraint(Sketcher.Constraint("Vertical", 1, 2, 4, 2))
sketch8.addConstraint(Sketcher.Constraint("Vertical", 3, 2, 5, 2))
sketch8.addConstraint(Sketcher.Constraint("Equal", 1, 4))
sketch8.addConstraint(Sketcher.Constraint("Equal", 0, 2))
sketch8.addConstraint(Sketcher.Constraint("DistanceY", 1, 2, 1, 1, 7.0))
sketch8.addConstraint(Sketcher.Constraint("DistanceY", 3, 1, 3, 2, 10.0))
sketch8.addConstraint(Sketcher.Constraint("DistanceX", -1, 1, 0, 2, 13.0))
sketch8.addConstraint(Sketcher.Constraint("DistanceX", -1, 1, 2, 2, 8.0))
sketch8.addConstraint(Sketcher.Constraint("DistanceY", 4, 2, 2, 2, 31.0))
sketch8.addConstraint(Sketcher.Constraint("DistanceY", 0, 2, -1, 1, 40.25))
sketch8.setExpression("Constraints[18]", "Params.sketch8_height")
sketch8.setExpression("Constraints[19]", "Params.sketch8_height2")
pocket4 = body.newObject("PartDesign::Pocket", "Pocket003")
pocket4.Profile = sketch8
pocket4.setExpression("Length", "Params.pocket4_length")
pocket4.Reversed = True
doc.recompute()

mirrored2 = body.newObject("PartDesign::Mirrored", "Mirrored001")
mirrored2.Originals = [pocket4]
mirrored2.MirrorPlane = (doc.getObject("XZ_Plane"), [""])
body.Tip = mirrored2
doc.recompute()

mirrored3 = body.newObject("PartDesign::Mirrored", "Mirrored002")
mirrored3.Originals = [pocket2]
mirrored3.MirrorPlane = (doc.getObject("XZ_Plane"), [""])
body.Tip = mirrored3
doc.recompute()

fillet2 = body.newObject("PartDesign::Fillet", "Fillet001")
fillet2.Base = (mirrored3, edges_at(mirrored3, [
    (0, -51.25, 27.5),
    (0, -51.25, -27.5),
    (0, 13, -27.5),
    (0, -13, -27.5),
    (0, 13, -92.5),
    (0, -13, -92.5),
    (0, 51.25, -27.5),
    (0, 51.25, 27.5),
]))
fillet2.setExpression("Radius", "Params.fillet2_radius")

doc.recompute()
